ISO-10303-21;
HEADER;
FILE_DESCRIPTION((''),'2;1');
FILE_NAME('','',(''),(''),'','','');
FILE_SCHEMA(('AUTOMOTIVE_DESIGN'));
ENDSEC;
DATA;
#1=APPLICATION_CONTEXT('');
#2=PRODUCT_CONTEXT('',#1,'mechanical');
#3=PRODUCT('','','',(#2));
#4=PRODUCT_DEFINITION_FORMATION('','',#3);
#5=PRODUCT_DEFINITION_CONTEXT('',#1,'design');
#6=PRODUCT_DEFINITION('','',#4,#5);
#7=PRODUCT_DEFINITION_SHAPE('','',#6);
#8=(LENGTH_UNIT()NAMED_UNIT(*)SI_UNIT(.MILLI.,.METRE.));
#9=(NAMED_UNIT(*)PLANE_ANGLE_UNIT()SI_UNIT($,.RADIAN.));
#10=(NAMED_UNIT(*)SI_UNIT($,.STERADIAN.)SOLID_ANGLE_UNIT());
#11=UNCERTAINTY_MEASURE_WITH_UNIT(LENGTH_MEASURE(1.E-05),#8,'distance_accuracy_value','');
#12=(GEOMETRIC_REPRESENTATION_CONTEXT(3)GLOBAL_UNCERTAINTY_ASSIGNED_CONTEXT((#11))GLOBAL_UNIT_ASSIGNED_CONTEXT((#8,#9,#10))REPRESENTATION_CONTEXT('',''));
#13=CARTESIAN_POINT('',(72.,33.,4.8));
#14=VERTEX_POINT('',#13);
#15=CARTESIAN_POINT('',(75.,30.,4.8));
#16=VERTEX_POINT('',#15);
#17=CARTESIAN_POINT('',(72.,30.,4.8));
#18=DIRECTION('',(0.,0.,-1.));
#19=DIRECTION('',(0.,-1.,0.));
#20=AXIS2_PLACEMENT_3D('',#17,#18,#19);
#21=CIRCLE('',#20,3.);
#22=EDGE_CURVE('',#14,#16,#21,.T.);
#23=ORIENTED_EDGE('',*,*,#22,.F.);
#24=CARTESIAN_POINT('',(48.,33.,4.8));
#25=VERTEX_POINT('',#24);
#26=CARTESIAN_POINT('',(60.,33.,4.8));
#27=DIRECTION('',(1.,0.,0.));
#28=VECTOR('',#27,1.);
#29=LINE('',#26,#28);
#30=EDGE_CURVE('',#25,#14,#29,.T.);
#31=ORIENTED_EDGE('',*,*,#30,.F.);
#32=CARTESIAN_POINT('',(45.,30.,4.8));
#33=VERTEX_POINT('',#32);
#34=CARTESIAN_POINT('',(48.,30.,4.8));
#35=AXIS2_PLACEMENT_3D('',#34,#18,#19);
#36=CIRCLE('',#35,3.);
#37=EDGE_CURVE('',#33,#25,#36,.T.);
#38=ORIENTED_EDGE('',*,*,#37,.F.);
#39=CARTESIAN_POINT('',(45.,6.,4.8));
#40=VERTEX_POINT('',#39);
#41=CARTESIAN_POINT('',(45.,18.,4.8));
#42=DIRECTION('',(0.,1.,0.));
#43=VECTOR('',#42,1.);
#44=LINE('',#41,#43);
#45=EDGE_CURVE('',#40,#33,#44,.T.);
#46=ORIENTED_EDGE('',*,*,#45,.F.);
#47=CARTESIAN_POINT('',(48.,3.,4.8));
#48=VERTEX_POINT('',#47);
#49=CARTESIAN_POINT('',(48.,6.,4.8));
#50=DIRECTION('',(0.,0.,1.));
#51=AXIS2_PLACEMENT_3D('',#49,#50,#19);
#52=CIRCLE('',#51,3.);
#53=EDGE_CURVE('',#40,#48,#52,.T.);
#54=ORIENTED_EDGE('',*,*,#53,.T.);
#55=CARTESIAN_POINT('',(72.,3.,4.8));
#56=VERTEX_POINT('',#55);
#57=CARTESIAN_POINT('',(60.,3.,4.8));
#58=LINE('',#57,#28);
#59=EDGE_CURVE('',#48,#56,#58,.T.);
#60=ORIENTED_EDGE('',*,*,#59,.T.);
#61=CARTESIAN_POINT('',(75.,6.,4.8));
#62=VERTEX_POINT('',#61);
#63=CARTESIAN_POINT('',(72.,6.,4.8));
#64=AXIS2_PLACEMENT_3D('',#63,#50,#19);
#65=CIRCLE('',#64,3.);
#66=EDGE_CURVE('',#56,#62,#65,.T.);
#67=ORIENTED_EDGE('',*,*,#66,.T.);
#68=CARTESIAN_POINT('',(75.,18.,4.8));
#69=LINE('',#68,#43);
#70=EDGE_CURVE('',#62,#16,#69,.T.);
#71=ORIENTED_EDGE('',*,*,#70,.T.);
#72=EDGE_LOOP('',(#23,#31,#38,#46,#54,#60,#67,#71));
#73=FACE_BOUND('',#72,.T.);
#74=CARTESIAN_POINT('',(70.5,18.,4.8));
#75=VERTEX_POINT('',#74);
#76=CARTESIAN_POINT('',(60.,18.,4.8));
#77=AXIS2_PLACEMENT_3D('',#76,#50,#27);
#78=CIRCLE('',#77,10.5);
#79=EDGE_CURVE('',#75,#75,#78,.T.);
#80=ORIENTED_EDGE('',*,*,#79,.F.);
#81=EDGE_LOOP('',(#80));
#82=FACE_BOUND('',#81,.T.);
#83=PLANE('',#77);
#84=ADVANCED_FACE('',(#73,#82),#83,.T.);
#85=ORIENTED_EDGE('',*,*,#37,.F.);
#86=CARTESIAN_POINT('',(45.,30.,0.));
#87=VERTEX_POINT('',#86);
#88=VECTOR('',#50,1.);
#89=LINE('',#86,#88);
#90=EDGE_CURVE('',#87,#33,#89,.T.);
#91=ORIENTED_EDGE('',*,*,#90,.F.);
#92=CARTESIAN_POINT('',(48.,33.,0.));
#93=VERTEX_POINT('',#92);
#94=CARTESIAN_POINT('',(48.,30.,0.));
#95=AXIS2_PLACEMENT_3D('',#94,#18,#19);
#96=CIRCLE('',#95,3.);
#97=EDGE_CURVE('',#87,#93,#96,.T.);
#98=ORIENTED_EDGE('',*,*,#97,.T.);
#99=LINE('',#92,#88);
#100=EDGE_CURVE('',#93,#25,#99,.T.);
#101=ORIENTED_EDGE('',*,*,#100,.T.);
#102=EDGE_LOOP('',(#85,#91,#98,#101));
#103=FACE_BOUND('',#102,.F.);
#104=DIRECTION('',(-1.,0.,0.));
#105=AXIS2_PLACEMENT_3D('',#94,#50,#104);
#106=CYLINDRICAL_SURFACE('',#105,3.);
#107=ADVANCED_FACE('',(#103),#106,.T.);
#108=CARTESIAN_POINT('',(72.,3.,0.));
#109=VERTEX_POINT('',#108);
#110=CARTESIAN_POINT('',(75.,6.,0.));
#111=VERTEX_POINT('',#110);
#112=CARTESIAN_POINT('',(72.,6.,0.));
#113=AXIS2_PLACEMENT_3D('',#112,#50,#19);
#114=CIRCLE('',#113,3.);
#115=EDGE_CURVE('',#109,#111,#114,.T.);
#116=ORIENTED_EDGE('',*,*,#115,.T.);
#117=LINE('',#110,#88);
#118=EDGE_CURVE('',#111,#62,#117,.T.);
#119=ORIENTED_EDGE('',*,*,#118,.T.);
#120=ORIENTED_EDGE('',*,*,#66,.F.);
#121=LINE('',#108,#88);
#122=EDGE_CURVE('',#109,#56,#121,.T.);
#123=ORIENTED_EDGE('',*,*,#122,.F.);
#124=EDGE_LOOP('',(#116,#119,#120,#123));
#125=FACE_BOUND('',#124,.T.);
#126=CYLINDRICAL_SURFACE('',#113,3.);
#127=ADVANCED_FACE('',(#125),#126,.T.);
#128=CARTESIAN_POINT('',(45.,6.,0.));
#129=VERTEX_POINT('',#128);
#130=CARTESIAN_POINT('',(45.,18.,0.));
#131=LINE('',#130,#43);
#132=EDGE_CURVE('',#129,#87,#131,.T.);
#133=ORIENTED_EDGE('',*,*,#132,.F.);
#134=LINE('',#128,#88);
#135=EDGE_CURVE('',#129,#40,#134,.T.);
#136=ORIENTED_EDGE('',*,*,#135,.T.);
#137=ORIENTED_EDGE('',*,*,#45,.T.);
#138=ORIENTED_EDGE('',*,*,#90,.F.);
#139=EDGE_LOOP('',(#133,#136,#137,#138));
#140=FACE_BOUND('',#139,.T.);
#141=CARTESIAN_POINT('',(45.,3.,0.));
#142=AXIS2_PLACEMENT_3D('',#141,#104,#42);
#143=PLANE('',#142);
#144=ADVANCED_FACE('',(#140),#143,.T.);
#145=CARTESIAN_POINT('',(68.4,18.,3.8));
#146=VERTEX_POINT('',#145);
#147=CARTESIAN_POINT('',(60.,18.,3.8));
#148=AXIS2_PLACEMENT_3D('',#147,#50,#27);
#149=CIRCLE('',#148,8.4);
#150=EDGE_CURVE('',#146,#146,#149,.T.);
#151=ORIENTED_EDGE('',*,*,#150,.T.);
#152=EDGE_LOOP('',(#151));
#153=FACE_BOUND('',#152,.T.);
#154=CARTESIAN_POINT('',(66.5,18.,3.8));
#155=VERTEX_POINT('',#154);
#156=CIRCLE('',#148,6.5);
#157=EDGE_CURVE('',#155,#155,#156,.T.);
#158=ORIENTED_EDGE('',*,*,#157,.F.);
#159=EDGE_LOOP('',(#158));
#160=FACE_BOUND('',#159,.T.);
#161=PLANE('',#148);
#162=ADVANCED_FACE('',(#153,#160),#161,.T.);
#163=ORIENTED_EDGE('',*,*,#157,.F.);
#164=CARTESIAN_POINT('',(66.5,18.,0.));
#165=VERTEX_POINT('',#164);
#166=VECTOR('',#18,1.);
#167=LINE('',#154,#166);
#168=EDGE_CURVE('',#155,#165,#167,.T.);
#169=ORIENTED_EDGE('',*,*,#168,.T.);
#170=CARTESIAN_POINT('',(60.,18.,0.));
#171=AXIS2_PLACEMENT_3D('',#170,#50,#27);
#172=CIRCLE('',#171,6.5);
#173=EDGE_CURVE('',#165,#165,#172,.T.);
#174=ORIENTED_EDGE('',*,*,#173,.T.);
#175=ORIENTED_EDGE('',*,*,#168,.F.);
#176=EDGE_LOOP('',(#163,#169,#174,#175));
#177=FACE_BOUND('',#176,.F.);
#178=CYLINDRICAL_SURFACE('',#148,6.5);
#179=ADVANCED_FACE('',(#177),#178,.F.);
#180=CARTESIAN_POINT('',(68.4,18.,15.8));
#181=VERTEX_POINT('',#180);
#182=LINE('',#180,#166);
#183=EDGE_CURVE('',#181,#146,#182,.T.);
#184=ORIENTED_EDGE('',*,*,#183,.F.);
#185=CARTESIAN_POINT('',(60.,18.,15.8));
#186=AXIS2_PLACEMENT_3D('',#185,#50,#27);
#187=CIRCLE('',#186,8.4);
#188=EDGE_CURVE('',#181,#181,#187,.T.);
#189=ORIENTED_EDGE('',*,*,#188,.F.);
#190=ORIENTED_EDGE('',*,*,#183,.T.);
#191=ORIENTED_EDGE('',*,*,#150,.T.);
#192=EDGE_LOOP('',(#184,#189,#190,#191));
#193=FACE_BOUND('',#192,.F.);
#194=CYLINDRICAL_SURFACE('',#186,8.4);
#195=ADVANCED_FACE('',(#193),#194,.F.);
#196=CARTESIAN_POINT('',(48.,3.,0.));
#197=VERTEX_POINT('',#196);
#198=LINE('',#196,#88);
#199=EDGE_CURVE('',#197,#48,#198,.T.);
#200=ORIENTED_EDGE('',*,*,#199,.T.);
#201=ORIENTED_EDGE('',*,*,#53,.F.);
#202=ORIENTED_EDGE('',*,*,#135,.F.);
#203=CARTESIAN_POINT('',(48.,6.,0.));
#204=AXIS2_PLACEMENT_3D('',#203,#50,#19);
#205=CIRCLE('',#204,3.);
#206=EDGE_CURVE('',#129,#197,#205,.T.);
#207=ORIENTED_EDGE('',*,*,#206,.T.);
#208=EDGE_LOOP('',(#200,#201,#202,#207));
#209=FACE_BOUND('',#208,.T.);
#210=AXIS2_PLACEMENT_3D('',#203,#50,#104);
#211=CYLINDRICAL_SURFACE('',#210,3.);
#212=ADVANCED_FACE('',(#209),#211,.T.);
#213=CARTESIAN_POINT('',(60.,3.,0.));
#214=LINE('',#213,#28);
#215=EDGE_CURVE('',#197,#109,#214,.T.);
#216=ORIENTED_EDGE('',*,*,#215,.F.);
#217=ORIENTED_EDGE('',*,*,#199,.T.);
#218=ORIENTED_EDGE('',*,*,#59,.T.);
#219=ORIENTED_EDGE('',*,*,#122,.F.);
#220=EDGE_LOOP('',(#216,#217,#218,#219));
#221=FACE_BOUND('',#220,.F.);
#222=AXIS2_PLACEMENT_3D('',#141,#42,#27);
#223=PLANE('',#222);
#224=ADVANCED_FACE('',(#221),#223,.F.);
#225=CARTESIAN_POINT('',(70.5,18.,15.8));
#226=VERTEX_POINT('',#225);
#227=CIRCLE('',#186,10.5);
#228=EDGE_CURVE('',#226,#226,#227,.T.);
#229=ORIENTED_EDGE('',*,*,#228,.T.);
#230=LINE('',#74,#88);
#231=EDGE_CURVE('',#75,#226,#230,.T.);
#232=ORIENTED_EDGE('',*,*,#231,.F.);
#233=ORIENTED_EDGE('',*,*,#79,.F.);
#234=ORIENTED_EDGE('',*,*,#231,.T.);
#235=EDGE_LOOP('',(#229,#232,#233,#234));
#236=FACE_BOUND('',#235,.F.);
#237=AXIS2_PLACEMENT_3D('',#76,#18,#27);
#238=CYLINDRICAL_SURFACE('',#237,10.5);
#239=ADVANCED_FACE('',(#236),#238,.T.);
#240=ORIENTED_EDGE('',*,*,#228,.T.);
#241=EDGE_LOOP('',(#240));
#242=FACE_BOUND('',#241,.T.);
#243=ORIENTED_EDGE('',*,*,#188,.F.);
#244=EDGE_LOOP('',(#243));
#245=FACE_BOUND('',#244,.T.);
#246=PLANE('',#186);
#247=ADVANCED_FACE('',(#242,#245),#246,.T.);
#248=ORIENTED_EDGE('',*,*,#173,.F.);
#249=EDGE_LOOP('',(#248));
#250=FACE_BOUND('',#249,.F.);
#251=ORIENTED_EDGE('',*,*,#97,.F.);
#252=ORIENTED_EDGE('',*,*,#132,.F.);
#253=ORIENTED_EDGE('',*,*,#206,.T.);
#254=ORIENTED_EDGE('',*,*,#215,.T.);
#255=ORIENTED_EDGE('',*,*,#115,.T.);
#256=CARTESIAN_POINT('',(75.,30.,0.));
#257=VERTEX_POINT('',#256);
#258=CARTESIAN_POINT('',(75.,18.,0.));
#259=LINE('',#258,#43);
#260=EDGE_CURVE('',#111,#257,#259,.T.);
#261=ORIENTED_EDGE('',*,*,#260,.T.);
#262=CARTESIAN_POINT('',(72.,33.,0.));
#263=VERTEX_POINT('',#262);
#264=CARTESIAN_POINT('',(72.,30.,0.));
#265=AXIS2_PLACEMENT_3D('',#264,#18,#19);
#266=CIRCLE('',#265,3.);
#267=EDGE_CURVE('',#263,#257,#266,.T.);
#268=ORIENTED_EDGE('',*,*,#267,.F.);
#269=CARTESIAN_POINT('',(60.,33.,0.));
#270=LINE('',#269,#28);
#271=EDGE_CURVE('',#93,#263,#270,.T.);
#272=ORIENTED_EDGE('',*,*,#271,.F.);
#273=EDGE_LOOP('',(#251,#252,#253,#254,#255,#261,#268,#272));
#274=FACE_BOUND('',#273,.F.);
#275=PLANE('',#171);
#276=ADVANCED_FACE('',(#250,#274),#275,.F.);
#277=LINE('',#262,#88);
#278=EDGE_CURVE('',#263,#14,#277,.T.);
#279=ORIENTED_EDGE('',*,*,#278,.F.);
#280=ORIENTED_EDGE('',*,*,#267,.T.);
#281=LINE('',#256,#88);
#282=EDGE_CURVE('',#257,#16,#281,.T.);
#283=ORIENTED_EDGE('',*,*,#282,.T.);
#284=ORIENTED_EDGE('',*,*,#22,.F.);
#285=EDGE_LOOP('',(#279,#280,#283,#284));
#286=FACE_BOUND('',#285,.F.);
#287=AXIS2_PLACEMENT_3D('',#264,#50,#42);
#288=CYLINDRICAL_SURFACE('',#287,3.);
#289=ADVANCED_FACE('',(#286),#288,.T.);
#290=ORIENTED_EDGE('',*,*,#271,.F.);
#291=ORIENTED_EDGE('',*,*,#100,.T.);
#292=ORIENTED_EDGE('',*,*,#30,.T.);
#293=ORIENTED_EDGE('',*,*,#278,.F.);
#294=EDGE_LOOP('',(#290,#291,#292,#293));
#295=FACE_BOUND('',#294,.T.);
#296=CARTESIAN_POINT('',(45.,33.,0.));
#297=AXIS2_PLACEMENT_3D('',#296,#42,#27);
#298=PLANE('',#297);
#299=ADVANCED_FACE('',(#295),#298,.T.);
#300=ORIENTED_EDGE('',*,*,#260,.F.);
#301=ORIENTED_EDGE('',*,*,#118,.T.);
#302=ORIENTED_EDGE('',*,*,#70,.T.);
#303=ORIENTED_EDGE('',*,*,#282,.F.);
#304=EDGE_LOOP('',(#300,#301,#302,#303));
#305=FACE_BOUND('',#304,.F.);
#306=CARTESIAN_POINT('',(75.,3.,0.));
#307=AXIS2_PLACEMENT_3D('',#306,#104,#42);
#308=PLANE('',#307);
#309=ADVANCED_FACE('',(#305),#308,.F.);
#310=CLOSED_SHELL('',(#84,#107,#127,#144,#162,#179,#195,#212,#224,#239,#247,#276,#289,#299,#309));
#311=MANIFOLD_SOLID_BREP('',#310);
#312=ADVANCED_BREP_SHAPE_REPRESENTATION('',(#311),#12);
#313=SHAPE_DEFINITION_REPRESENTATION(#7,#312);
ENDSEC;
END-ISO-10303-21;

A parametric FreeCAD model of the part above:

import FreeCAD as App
import Part
import Sketcher
from FreeCAD import Vector


def edges_at(feature, points):
    """Names of the edges that pass closest to the given points."""
    edges = feature.Shape.Edges
    near = lambda p: min(range(len(edges)), key=lambda i: edges[i].distToShape(Part.Vertex(*p))[0])
    return sorted({f"Edge{near(p) + 1}" for p in points})


def add_polygon(sketch, points):
    """Adds a closed chain of lines whose ends are joined by coincident constraints."""
    first, n = sketch.GeometryCount, len(points)
    for a, b in zip(points, points[1:] + points[:1]):
        sketch.addGeometry(Part.LineSegment(App.Vector(*a, 0), App.Vector(*b, 0)), False)
    for i in range(n):
        sketch.addConstraint(Sketcher.Constraint("Coincident", first + i, 2, first + (i + 1) % n, 1))

doc = App.newDocument("Part")
body = doc.addObject("PartDesign::Body", "Body")

# Sketch on XY plane
sketch1 = body.newObject("Sketcher::SketchObject", "Sketch")
sketch1.AttachmentSupport = (doc.getObject("XY_Plane"), [""])
sketch1.MapMode = "FlatFace"
add_polygon(sketch1, [(-15, 15), (-15, -15), (15, -15), (15, 15)])  # lines 0-3
sketch1.addConstraint([
    Sketcher.Constraint("Vertical", 0),
    Sketcher.Constraint("Horizontal", 1),
    Sketcher.Constraint("Vertical", 2),
    Sketcher.Constraint("Horizontal", 3),
    Sketcher.Constraint("Symmetric", 0, 2, 2, 2, -1, 1),
    Sketcher.Constraint("Equal", 3, 0),
    Sketcher.Constraint("DistanceX", 1, 1, 1, 2, 30.0),
])
pad1 = body.newObject("PartDesign::Pad", "Pad")
pad1.Profile = sketch1
pad1.Length = 4.8

# Sketch on XY plane
sketch2 = body.newObject("Sketcher::SketchObject", "Sketch001")
sketch2.AttachmentSupport = (doc.getObject("XY_Plane"), [""])
sketch2.MapMode = "FlatFace"
sketch2.AttachmentOffset = App.Placement(Vector(0, 0, 4.8), App.Rotation())
sketch2.addGeometry(Part.Circle(Vector(0, 0, 0), Vector(0, 0, 1), 10.5), False)
sketch2.addConstraint([
    Sketcher.Constraint("Coincident", 0, 3, -1, 1),
    Sketcher.Constraint("Diameter", 0, 21.0),
])
pad2 = body.newObject("PartDesign::Pad", "Pad001")
pad2.Profile = sketch2
pad2.Length = 11

# Sketch on XY plane
sketch3 = body.newObject("Sketcher::SketchObject", "Sketch002")
sketch3.AttachmentSupport = (doc.getObject("XY_Plane"), [""])
sketch3.MapMode = "FlatFace"
sketch3.AttachmentOffset = App.Placement(Vector(0, 0, 15.8), App.Rotation())
sketch3.addGeometry(Part.Circle(Vector(0, 0, 0), Vector(0, 0, 1), 8.4), False)
sketch3.addConstraint([
    Sketcher.Constraint("Coincident", 0, 3, -1, 1),
    Sketcher.Constraint("Diameter", 0, 16.8),
])
pocket1 = body.newObject("PartDesign::Pocket", "Pocket")
pocket1.Profile = sketch3
pocket1.Length = 12

# Sketch on XY plane
sketch4 = body.newObject("Sketcher::SketchObject", "Sketch003")
sketch4.AttachmentSupport = (doc.getObject("XY_Plane"), [""])
sketch4.MapMode = "FlatFace"
sketch4.AttachmentOffset = App.Placement(Vector(0, 0, 3.8), App.Rotation())
sketch4.addGeometry(Part.Circle(Vector(0, 0, 0), Vector(0, 0, 1), 6.5), False)
sketch4.addConstraint([
    Sketcher.Constraint("Coincident", 0, 3, -1, 1),
    Sketcher.Constraint("Diameter", 0, 13.0),
])
pocket2 = body.newObject("PartDesign::Pocket", "Pocket001")
pocket2.Profile = sketch4
pocket2.Type = "ThroughAll"
doc.recompute()

fillet = body.newObject("PartDesign::Fillet", "Fillet")
fillet.Base = (pocket2, edges_at(pocket2, [
    (15, -15, 2.4),
    (-15, -15, 2.4),
    (15, 15, 2.4),
    (-15, 15, 2.4),
]))
fillet.Radius = 3
body2 = doc.addObject("PartDesign::Body", "Body001")
doc.recompute()

body.Placement = App.Placement(Vector(60, 18, 0), App.Rotation(Vector(0, 0, 1), 0))
boolean = body2.newObject("PartDesign::Boolean", "Boolean")
boolean.Type = "Fuse"
boolean.addObjects([body])

doc.recompute()
